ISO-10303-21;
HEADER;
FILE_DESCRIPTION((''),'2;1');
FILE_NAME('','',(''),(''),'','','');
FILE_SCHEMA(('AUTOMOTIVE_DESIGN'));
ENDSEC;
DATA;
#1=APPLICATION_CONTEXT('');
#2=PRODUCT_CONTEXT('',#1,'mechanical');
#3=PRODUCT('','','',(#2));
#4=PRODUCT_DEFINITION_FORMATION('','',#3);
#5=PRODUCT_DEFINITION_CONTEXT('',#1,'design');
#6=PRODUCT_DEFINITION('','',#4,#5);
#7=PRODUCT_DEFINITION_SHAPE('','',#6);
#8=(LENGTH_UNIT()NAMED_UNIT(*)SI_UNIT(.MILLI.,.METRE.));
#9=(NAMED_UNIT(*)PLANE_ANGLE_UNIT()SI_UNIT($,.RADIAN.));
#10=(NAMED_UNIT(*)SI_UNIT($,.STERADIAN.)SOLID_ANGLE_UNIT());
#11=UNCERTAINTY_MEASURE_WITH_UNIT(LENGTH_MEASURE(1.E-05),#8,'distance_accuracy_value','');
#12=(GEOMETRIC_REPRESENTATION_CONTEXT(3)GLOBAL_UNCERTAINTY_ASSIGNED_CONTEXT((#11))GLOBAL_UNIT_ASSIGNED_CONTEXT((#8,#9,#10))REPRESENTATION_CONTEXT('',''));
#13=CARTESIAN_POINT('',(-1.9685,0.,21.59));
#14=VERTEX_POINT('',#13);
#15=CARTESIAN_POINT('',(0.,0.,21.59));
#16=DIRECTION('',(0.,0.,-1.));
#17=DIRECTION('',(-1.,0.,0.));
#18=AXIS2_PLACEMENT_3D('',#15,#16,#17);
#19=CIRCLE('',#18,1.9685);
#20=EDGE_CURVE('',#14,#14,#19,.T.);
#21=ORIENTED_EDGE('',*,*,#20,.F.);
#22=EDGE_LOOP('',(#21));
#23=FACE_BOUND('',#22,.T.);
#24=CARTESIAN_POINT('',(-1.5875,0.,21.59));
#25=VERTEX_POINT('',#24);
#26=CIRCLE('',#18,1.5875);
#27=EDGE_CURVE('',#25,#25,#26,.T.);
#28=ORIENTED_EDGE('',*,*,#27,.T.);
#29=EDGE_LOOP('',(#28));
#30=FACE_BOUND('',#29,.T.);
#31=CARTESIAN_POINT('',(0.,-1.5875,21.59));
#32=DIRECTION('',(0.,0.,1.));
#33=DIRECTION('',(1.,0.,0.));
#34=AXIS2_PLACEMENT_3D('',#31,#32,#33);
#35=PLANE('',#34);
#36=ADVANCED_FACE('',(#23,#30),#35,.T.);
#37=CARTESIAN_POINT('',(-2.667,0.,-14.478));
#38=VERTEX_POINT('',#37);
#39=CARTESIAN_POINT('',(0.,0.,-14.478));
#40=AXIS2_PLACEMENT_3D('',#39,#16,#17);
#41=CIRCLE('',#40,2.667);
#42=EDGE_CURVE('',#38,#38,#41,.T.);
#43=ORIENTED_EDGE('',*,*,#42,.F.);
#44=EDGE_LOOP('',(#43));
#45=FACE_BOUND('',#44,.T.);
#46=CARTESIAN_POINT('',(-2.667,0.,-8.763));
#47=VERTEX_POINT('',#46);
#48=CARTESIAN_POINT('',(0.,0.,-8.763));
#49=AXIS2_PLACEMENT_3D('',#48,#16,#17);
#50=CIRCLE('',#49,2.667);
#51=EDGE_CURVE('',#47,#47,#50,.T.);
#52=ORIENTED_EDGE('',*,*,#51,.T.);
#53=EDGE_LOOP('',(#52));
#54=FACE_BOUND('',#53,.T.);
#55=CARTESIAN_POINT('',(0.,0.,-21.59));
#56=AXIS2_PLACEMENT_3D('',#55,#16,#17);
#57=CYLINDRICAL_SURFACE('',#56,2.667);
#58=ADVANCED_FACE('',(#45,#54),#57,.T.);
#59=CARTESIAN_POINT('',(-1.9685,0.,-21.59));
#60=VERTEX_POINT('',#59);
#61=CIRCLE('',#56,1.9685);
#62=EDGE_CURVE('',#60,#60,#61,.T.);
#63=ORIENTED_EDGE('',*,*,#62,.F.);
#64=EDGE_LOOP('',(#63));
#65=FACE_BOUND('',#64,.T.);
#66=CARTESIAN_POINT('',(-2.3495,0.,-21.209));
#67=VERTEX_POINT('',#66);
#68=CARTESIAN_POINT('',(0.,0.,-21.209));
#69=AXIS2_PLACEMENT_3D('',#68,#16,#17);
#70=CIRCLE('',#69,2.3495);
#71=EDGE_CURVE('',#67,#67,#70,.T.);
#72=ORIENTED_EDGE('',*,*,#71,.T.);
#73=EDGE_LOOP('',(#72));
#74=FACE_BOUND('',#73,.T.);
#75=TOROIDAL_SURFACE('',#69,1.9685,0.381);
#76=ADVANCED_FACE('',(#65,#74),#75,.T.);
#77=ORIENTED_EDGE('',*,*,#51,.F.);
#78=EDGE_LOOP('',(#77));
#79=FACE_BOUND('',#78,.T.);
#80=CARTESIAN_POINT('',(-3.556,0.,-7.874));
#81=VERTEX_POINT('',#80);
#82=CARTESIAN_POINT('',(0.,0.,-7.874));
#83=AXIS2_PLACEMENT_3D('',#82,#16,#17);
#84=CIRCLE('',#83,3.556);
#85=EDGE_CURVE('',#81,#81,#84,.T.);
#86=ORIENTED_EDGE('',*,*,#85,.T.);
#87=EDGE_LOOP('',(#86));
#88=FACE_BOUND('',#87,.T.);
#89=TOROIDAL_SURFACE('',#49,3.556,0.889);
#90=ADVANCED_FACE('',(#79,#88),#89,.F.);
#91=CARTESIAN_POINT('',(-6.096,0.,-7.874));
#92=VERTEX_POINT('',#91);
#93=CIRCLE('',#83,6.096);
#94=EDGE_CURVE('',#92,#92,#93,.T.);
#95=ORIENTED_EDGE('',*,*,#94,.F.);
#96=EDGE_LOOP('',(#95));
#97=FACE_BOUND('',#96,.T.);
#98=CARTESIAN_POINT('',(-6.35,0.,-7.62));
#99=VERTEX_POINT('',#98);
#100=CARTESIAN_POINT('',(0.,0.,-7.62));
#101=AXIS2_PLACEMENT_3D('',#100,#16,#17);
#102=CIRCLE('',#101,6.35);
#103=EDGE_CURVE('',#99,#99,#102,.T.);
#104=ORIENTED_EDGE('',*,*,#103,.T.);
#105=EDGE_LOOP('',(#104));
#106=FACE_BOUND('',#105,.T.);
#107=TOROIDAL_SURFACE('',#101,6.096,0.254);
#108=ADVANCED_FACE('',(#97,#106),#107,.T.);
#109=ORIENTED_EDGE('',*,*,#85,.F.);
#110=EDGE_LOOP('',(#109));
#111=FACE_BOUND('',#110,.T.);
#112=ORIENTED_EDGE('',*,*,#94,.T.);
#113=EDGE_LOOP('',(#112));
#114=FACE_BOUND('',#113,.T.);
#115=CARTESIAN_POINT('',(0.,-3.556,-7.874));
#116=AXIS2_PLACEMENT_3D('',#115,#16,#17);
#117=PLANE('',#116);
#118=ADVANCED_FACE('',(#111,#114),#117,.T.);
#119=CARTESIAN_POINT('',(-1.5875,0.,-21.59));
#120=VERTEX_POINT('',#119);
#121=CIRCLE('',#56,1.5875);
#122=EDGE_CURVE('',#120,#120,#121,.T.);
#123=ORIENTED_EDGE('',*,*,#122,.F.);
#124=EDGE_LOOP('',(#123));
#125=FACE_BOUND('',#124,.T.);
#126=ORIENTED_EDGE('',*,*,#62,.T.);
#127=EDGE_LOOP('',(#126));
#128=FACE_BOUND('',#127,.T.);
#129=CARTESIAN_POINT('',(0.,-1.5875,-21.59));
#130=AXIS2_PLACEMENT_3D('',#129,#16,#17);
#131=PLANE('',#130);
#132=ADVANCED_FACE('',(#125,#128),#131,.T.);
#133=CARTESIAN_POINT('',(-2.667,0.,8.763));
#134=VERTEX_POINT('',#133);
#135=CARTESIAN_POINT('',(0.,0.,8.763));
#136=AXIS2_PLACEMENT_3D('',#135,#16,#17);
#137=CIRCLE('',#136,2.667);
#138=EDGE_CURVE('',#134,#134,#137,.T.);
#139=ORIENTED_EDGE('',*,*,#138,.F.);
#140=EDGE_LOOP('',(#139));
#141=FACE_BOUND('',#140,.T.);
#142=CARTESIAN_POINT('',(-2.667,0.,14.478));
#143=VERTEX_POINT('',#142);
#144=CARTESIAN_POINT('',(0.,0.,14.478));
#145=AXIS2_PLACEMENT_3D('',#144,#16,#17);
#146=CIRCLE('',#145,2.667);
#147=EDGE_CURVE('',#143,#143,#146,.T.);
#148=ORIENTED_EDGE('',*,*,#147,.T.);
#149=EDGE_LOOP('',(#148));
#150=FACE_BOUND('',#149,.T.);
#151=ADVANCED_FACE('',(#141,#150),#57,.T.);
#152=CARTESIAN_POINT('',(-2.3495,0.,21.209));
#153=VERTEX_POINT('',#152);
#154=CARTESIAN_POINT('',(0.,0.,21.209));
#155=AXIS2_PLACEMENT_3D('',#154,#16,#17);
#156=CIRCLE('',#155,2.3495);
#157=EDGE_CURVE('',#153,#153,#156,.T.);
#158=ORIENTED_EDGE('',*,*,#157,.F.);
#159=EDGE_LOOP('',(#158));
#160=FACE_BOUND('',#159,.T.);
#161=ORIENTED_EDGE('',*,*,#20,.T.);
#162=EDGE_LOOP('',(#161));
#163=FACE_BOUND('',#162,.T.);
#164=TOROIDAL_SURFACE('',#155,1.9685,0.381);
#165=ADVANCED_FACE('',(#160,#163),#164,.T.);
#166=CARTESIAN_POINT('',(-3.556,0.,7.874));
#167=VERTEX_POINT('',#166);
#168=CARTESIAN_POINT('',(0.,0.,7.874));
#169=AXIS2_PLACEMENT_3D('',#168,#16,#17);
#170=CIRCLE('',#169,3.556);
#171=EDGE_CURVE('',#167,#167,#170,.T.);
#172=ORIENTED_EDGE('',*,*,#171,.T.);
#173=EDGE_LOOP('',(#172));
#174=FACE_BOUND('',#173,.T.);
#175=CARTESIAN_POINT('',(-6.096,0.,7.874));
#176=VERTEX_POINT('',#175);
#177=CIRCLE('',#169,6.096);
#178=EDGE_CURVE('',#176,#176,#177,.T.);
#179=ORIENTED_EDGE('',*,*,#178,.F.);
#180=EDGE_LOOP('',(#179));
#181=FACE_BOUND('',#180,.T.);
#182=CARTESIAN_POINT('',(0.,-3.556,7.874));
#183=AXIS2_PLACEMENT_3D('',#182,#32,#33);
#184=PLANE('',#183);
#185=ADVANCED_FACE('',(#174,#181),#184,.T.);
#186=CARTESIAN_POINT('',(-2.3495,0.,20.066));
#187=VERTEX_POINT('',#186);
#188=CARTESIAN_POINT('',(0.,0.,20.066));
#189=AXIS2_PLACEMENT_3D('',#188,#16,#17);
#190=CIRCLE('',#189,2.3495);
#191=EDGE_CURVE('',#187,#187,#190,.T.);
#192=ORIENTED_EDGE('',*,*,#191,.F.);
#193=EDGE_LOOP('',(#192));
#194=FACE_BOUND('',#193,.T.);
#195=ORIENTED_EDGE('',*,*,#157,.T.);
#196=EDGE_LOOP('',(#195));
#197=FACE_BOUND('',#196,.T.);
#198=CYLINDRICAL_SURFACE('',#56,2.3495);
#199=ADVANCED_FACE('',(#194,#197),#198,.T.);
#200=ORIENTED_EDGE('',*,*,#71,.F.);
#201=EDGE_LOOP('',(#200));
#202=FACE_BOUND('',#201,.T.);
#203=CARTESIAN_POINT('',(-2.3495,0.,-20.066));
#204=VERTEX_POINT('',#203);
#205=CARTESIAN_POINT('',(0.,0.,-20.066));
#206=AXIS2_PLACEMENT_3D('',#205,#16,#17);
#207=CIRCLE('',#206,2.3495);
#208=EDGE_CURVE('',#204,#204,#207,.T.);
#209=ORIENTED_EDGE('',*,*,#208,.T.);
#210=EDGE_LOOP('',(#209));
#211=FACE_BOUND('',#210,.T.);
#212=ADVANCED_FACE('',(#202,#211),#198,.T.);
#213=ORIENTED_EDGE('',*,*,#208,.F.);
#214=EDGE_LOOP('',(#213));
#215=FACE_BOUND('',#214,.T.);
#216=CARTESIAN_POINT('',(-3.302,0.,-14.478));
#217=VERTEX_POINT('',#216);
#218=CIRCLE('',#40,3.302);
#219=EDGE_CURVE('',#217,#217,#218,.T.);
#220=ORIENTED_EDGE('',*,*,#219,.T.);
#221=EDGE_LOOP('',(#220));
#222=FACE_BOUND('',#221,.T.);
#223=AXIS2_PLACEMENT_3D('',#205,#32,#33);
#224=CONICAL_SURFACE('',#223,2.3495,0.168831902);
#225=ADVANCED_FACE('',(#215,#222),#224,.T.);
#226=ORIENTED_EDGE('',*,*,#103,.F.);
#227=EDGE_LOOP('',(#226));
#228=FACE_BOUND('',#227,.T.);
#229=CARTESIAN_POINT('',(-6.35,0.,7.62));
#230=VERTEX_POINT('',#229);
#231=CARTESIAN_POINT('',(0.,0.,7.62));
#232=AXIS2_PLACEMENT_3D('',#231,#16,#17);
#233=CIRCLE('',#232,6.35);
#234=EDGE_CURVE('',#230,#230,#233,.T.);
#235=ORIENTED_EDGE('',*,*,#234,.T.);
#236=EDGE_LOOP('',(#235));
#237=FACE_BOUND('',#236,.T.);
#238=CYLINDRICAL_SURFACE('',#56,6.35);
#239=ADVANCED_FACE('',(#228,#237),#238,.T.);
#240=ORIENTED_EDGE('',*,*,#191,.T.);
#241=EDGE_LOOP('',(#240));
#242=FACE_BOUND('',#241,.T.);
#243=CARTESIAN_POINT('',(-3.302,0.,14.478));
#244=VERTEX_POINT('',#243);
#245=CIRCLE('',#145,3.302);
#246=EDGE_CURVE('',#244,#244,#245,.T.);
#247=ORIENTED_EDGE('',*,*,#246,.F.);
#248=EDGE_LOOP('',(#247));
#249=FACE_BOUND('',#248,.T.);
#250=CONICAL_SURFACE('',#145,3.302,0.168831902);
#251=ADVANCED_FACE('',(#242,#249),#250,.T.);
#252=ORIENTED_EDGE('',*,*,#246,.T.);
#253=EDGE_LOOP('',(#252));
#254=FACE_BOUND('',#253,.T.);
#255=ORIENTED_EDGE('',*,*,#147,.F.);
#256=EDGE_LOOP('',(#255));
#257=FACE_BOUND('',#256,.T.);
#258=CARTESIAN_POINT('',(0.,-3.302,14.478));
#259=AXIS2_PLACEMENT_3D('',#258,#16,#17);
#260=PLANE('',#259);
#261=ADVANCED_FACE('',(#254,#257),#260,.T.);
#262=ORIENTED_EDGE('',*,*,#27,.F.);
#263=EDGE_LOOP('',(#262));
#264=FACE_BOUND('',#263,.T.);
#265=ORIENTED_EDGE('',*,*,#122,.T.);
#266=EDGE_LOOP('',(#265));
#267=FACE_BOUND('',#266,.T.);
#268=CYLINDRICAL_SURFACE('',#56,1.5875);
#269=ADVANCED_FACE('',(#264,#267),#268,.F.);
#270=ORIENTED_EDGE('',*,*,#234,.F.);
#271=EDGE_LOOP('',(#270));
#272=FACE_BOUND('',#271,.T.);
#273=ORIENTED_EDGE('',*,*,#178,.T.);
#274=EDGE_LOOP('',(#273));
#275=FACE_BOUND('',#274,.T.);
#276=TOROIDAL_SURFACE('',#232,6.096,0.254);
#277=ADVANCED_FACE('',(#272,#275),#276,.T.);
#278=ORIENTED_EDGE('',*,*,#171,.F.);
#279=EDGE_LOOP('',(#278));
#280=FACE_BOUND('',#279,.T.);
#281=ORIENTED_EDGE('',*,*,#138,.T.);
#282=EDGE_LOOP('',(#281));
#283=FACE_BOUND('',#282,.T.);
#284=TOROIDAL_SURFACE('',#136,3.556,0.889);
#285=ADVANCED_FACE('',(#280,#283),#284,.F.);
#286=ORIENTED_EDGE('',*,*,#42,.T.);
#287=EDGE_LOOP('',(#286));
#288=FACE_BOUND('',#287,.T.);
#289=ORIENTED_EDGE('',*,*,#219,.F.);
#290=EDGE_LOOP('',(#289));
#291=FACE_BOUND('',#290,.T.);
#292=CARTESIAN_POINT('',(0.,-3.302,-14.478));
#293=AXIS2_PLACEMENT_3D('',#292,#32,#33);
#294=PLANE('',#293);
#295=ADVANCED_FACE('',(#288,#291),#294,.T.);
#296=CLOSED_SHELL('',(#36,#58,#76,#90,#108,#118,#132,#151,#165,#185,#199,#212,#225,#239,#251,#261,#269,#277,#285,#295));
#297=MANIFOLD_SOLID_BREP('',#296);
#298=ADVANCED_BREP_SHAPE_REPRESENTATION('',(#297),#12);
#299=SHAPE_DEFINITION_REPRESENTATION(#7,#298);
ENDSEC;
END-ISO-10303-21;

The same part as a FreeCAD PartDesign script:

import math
import FreeCAD as App
import Part
import Sketcher

V = App.Vector
Q = App.Units.Quantity

doc = App.newDocument("Part")
params = doc.addObject("Spreadsheet::Sheet", "Params")
for row, (alias, value) in enumerate([
    ("sketch1_radius", "0.01 in"),
    ("sketch1_width", "0.1 in"),
    ("sketch1_height", "1.7 in"),
    ("sketch1_height2", "0.6 in"),
    ("sketch1_radius2", "0.015 in"),
    ("revolution_angle", "360 deg"),
], start=1):
    params.set(f"A{row}", alias)
    params.set(f"B{row}", "=" + value)
    params.setAlias(f"B{row}", alias)

body = doc.addObject("PartDesign::Body", "Body")

# Sketch on YZ plane
sketch1 = body.newObject("Sketcher::SketchObject", "Sketch")
sketch1.AttachmentSupport = (doc.getObject("YZ_Plane"), [""])
sketch1.MapMode = "FlatFace"
sketch1.addGeometry([
    Part.LineSegment(V(1.9685, 21.59, 0), V(1.5875, 21.59, 0)),  # 0
    Part.LineSegment(V(1.5875, 21.59, 0), V(1.5875, -21.59, 0)),  # 1
    Part.LineSegment(V(1.5875, -21.59, 0), V(1.9685, -21.59, 0)),  # 2
    Part.ArcOfCircle(Part.Circle(V(1.9685, -21.209, 0), V(0, 0, 1), 0.381), math.radians(-90), math.radians(0)),  # 3
    Part.LineSegment(V(2.3495, -21.209, 0), V(2.3495, -20.066, 0)),  # 4
    Part.LineSegment(V(2.3495, -20.066, 0), V(3.302, -14.478, 0)),  # 5
    Part.LineSegment(V(3.302, -14.478, 0), V(2.667, -14.478, 0)),  # 6
    Part.LineSegment(V(2.667, -14.478, 0), V(2.667, -8.763, 0)),  # 7
    Part.ArcOfCircle(Part.Circle(V(3.556, -8.763, 0), V(0, 0, 1), 0.889), math.radians(90), math.radians(180)),  # 8
    Part.LineSegment(V(3.556, -7.874, 0), V(6.096, -7.874, 0)),  # 9
    Part.ArcOfCircle(Part.Circle(V(6.096, -7.62, 0), V(0, 0, 1), 0.254), math.radians(-90), math.radians(0)),  # 10
    Part.LineSegment(V(6.35, -7.62, 0), V(6.35, 7.62, 0)),  # 11
    Part.ArcOfCircle(Part.Circle(V(6.096, 7.62, 0), V(0, 0, 1), 0.254), math.radians(0), math.radians(90)),  # 12
    Part.LineSegment(V(6.096, 7.874, 0), V(3.556, 7.874, 0)),  # 13
    Part.ArcOfCircle(Part.Circle(V(3.556, 8.763, 0), V(0, 0, 1), 0.889), math.radians(-180), math.radians(-90)),  # 14
    Part.LineSegment(V(2.667, 8.763, 0), V(2.667, 14.478, 0)),  # 15
    Part.LineSegment(V(2.667, 14.478, 0), V(3.302, 14.478, 0)),  # 16
    Part.LineSegment(V(3.302, 14.478, 0), V(2.3495, 20.066, 0)),  # 17
    Part.LineSegment(V(2.3495, 20.066, 0), V(2.3495, 21.209, 0)),  # 18
    Part.ArcOfCircle(Part.Circle(V(1.9685, 21.209, 0), V(0, 0, 1), 0.381), math.radians(0), math.radians(90)),  # 19
], False)
sketch1.addConstraint([
    Sketcher.Constraint("Coincident", 0, 2, 1, 1),
    Sketcher.Constraint("Coincident", 1, 2, 2, 1),
    Sketcher.Constraint("Tangent", 2, 2, 3, 1),
    Sketcher.Constraint("Tangent", 3, 2, 4, 1),
    Sketcher.Constraint("Coincident", 4, 2, 5, 1),
    Sketcher.Constraint("Coincident", 5, 2, 6, 1),
    Sketcher.Constraint("Coincident", 6, 2, 7, 1),
    Sketcher.Constraint("Tangent", 7, 2, 8, 2),
    Sketcher.Constraint("Tangent", 8, 1, 9, 1),
    Sketcher.Constraint("Tangent", 9, 2, 10, 1),
    Sketcher.Constraint("Tangent", 10, 2, 11, 1),
    Sketcher.Constraint("Tangent", 11, 2, 12, 1),
    Sketcher.Constraint("Tangent", 12, 2, 13, 1),
    Sketcher.Constraint("Tangent", 13, 2, 14, 2),
    Sketcher.Constraint("Tangent", 14, 1, 15, 1),
    Sketcher.Constraint("Coincident", 15, 2, 16, 1),
    Sketcher.Constraint("Coincident", 16, 2, 17, 1),
    Sketcher.Constraint("Coincident", 17, 2, 18, 1),
    Sketcher.Constraint("Tangent", 18, 2, 19, 1),
    Sketcher.Constraint("Tangent", 19, 2, 0, 1),
    Sketcher.Constraint("Horizontal", 0),
    Sketcher.Constraint("Vertical", 1),
    Sketcher.Constraint("Horizontal", 2),
    Sketcher.Constraint("Vertical", 4),
    Sketcher.Constraint("Horizontal", 6),
    Sketcher.Constraint("Vertical", 7),
    Sketcher.Constraint("Horizontal", 9),
    Sketcher.Constraint("Vertical", 11),
    Sketcher.Constraint("Horizontal", 13),
    Sketcher.Constraint("Vertical", 15),
    Sketcher.Constraint("Horizontal", 16),
    Sketcher.Constraint("Vertical", 18),
    Sketcher.Constraint("Equal", 10, 12),
    Sketcher.Constraint("Equal", 8, 14),
    Sketcher.Constraint("Equal", 3, 19),
    Sketcher.Constraint("Symmetric", 8, 3, 14, 3, -1),
    Sketcher.Constraint("Symmetric", 3, 3, 19, 3, -1),
    Sketcher.Constraint("Symmetric", 5, 2, 16, 2, -1),
    Sketcher.Constraint("Equal", 4, 18),
    Sketcher.Constraint("Radius", 10, Q("0.01 in")),
    Sketcher.Constraint("DistanceX", 9, 1, 9, 2, Q("0.1 in")),
    Sketcher.Constraint("DistanceY", 1, 2, 1, 1, Q("1.7 in")),
    Sketcher.Constraint("DistanceY", 11, 1, 11, 2, Q("0.6 in")),
    Sketcher.Constraint("Radius", 3, Q("0.015 in")),
    Sketcher.Constraint("Radius", 8, Q("0.035 in")),
    Sketcher.Constraint("DistanceX", 0, 2, 0, 1, Q("0.015 in")),
    Sketcher.Constraint("DistanceX", 6, 2, 6, 1, Q("0.025 in")),
    Sketcher.Constraint("DistanceY", 4, 1, 4, 2, Q("0.045 in")),
    Sketcher.Constraint("DistanceY", 7, 1, 7, 2, Q("0.225 in")),
    Sketcher.Constraint("DistanceX", -1, 1, 8, 3, Q("0.14 in")),
    Sketcher.Constraint("DistanceX", -1, 1, 0, 2, Q("0.0625 in")),
])
sketch1.setExpression("Constraints[39]", "Params.sketch1_radius")
sketch1.setExpression("Constraints[40]", "Params.sketch1_width")
sketch1.setExpression("Constraints[41]", "Params.sketch1_height")
sketch1.setExpression("Constraints[42]", "Params.sketch1_height2")
sketch1.setExpression("Constraints[43]", "Params.sketch1_radius2")
revolution = body.newObject("PartDesign::Revolution", "Revolution")
revolution.Profile = sketch1
revolution.ReferenceAxis = (sketch1, ["V_Axis"])
revolution.setExpression("Angle", "Params.revolution_angle")

doc.recompute()
